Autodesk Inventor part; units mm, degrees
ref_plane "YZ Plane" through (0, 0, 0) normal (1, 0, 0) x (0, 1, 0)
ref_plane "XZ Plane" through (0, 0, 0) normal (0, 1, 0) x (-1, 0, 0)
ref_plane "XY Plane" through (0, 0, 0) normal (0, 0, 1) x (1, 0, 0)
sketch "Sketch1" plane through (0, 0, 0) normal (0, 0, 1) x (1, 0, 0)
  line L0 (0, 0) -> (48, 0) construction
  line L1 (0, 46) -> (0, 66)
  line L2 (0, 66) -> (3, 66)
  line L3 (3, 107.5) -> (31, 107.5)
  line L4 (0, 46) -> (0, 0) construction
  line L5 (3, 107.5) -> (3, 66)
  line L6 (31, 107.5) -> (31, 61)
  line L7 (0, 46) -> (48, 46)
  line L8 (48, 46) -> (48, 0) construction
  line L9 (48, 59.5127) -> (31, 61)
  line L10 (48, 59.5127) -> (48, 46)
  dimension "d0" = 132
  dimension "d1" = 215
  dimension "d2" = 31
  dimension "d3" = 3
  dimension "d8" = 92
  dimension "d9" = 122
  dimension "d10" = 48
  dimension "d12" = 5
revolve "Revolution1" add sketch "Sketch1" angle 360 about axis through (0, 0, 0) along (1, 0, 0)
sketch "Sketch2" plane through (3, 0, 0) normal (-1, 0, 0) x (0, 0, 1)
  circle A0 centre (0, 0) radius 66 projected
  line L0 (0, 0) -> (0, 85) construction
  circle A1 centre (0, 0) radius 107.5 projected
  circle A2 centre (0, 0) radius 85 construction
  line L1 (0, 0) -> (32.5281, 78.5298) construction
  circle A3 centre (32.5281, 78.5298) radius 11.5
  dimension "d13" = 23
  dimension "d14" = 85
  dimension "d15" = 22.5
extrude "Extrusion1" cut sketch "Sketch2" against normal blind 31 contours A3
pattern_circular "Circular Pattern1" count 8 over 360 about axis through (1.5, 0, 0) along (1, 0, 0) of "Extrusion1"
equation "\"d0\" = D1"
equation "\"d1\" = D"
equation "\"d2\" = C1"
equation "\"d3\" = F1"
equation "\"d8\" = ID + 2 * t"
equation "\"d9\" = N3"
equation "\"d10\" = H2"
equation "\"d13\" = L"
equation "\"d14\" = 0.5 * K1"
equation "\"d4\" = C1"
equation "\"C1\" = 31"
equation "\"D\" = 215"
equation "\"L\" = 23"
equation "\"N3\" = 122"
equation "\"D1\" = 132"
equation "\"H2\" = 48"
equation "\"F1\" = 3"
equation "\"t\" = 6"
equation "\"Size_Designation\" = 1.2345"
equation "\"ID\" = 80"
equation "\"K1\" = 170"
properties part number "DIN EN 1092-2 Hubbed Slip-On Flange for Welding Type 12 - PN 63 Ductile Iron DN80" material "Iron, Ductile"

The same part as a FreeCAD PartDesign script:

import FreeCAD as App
import Part
import Sketcher
from FreeCAD import Vector
Q = App.Units.Quantity

doc = App.newDocument("Part")
body = doc.addObject("PartDesign::Body", "Body")

# Sketch on XY plane
sketch1 = body.newObject("Sketcher::SketchObject", "Sketch")
sketch1.AttachmentSupport = (doc.getObject("XY_Plane"), [""])
sketch1.MapMode = "FlatFace"
sketch1.addGeometry([
    Part.LineSegment(Vector(0, 66, 0), Vector(0, 46, 0)),  # 0
    Part.LineSegment(Vector(0, 46, 0), Vector(48, 46, 0)),  # 1
    Part.LineSegment(Vector(48, 46, 0), Vector(48, 59.5127, 0)),  # 2
    Part.LineSegment(Vector(48, 59.5127, 0), Vector(31, 61, 0)),  # 3
    Part.LineSegment(Vector(31, 61, 0), Vector(31, 107.5, 0)),  # 4
    Part.LineSegment(Vector(31, 107.5, 0), Vector(3, 107.5, 0)),  # 5
    Part.LineSegment(Vector(3, 107.5, 0), Vector(3, 66, 0)),  # 6
    Part.LineSegment(Vector(3, 66, 0), Vector(0, 66, 0)),  # 7
], False)
sketch1.addConstraint([
    Sketcher.Constraint("Coincident", 0, 2, 1, 1),
    Sketcher.Constraint("Coincident", 1, 2, 2, 1),
    Sketcher.Constraint("Coincident", 2, 2, 3, 1),
    Sketcher.Constraint("Coincident", 3, 2, 4, 1),
    Sketcher.Constraint("Coincident", 4, 2, 5, 1),
    Sketcher.Constraint("Coincident", 5, 2, 6, 1),
    Sketcher.Constraint("Coincident", 6, 2, 7, 1),
    Sketcher.Constraint("Coincident", 7, 2, 0, 1),
    Sketcher.Constraint("Vertical", 0),
    Sketcher.Constraint("Horizontal", 1),
    Sketcher.Constraint("Vertical", 2),
    Sketcher.Constraint("Vertical", 4),
    Sketcher.Constraint("Horizontal", 5),
    Sketcher.Constraint("Vertical", 6),
    Sketcher.Constraint("Horizontal", 7),
    Sketcher.Constraint("PointOnObject", 0, 2, -2),
    Sketcher.Constraint("DistanceX", 1, 1, 1, 2, 48.0),
    Sketcher.Constraint("DistanceX", 7, 2, 7, 1, 3.0),
    Sketcher.Constraint("DistanceX", -1, 1, 3, 2, 31.0),
    Sketcher.Constraint("DistanceY", 3, 2, 6, 2, 5.0),
    Sketcher.Constraint("DistanceY", 0, 2, 0, 1, 20.0),
    Sketcher.Constraint("Angle", 3, Q("175 deg")),
    Sketcher.Constraint("DistanceY", 4, 1, 4, 2, 46.5),
    Sketcher.Constraint("DistanceY", -1, 1, 0, 2, 46.0),
])
revolution = body.newObject("PartDesign::Revolution", "Revolution")
revolution.Profile = sketch1
revolution.ReferenceAxis = (sketch1, ["H_Axis"])
revolution.Angle = 360

# Sketch on YZ plane
sketch2 = body.newObject("Sketcher::SketchObject", "Sketch001")
sketch2.AttachmentSupport = (doc.getObject("YZ_Plane"), [""])
sketch2.MapMode = "FlatFace"
sketch2.AttachmentOffset = App.Placement(Vector(0, 0, 3), App.Rotation())
sketch2.addGeometry(Part.Circle(Vector(78.5298, 32.5281, 0), Vector(0, 0, 1), 11.5), False)
sketch2.addConstraint([
    Sketcher.Constraint("Diameter", 0, 23.0),
    Sketcher.Constraint("DistanceY", -1, 1, 0, 3, 32.528),
    Sketcher.Constraint("DistanceX", -1, 1, 0, 3, 78.5298),
])
pocket1 = body.newObject("PartDesign::Pocket", "Pocket")
pocket1.Profile = sketch2
pocket1.Length = 31
pocket1.Reversed = True
doc.recompute()

polarpattern = body.newObject("PartDesign::PolarPattern", "PolarPattern")
polarpattern.Originals = [pocket1]
polarpattern.Axis = (doc.getObject("X_Axis"), [""])
polarpattern.Angle = 360
polarpattern.Occurrences = 8
body.Tip = polarpattern

doc.recompute()
